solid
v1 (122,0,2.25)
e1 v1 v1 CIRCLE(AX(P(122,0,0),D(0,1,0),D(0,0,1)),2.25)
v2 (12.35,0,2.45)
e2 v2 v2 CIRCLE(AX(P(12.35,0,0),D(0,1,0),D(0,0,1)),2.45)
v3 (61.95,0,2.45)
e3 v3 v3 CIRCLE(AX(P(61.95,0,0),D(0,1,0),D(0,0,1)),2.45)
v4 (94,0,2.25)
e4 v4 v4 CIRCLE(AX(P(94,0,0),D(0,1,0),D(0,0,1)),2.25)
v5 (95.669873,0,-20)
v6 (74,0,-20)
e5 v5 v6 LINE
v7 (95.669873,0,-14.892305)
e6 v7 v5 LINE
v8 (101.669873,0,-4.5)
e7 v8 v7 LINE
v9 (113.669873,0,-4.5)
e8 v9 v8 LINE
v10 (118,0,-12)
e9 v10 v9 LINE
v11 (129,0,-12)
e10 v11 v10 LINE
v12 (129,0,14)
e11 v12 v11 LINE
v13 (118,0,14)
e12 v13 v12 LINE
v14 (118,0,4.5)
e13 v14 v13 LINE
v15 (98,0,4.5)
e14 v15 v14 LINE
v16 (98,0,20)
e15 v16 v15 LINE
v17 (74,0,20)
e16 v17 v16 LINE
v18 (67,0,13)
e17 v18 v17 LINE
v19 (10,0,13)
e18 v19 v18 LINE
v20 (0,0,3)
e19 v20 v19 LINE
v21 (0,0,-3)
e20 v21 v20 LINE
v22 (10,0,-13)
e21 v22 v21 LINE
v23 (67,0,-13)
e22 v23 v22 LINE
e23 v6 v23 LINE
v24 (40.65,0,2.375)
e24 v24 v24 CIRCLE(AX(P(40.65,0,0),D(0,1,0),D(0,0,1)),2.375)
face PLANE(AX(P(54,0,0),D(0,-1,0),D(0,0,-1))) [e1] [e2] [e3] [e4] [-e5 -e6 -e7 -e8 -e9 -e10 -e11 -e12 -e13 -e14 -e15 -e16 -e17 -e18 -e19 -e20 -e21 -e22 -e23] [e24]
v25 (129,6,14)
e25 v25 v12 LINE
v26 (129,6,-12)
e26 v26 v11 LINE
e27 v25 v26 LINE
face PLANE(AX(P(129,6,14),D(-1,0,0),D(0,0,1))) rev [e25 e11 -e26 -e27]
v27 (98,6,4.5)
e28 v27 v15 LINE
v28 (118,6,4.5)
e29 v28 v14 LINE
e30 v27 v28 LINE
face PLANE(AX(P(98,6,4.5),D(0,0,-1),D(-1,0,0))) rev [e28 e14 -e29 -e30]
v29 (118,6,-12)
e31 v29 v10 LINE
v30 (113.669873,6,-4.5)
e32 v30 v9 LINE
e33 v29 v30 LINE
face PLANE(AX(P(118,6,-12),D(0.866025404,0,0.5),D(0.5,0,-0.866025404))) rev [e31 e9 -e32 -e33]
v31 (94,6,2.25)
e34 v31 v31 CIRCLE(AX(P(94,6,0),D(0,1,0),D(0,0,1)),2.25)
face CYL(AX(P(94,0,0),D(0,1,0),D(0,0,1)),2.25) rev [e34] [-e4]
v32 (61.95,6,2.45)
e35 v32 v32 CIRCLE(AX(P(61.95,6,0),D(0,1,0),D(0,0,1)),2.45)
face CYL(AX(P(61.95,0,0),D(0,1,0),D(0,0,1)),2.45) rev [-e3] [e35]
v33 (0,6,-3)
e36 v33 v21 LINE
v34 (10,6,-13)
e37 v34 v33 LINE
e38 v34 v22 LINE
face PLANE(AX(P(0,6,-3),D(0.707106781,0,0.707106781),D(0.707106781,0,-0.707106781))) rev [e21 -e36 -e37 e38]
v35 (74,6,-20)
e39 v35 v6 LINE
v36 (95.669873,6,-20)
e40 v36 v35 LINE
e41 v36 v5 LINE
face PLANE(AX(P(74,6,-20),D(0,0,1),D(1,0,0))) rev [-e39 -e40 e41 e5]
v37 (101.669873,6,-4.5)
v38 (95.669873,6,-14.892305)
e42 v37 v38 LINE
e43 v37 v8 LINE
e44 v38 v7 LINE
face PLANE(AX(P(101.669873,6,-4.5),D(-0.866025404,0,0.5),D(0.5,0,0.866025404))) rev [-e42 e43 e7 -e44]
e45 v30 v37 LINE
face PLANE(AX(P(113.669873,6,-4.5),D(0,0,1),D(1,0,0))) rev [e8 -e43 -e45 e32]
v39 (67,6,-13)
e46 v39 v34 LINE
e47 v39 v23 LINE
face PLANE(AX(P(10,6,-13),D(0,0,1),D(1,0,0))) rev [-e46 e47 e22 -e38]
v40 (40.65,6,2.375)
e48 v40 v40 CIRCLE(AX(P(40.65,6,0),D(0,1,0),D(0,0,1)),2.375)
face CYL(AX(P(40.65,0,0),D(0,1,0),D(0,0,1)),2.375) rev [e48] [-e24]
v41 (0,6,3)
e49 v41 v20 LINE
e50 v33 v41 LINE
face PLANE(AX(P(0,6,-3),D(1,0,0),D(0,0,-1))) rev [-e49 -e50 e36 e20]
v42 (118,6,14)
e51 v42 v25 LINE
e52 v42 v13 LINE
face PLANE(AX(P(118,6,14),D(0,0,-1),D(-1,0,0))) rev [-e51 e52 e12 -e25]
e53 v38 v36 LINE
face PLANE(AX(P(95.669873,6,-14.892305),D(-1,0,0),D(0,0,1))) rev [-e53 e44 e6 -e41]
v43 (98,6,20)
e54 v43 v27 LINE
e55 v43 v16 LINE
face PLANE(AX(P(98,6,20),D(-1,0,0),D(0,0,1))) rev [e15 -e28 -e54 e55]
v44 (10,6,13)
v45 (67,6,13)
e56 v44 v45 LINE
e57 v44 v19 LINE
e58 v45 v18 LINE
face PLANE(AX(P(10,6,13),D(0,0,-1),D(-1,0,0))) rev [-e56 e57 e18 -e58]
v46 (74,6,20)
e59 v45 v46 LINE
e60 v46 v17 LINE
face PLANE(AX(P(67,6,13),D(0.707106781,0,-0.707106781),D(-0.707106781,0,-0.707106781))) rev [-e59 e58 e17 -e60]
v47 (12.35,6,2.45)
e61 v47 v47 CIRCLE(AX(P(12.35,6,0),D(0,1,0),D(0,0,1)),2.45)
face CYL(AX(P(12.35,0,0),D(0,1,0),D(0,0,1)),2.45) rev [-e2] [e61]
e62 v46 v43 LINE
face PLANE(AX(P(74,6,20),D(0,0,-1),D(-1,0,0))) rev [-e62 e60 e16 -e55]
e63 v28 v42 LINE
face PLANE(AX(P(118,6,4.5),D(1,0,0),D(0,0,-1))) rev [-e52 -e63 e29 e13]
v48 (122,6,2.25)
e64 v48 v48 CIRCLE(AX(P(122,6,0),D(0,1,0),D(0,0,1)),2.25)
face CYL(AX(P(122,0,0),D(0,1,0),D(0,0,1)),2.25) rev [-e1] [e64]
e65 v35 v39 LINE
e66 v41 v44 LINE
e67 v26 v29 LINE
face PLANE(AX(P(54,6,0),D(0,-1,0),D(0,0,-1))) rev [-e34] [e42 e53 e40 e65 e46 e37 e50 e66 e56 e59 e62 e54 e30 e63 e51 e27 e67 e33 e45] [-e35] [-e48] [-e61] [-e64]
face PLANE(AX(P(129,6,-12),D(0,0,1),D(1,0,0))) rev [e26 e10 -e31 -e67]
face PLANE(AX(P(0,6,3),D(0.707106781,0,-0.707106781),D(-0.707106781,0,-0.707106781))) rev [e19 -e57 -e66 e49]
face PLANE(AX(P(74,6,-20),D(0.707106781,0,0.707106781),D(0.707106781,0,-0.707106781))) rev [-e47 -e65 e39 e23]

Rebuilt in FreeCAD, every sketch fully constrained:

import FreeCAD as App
import Part
import Sketcher
Q = App.Units.Quantity

doc = App.newDocument("Part")
params = doc.addObject("Spreadsheet::Sheet", "Params")
for row, (alias, value) in enumerate([
    ("sketch1_width", "57 mm"),
    ("sketch1_width2", "24 mm"),
    ("sketch1_width3", "20 mm"),
    ("sketch1_width4", "11 mm"),
    ("sketch1_width5", "12 mm"),
    ("pad1_length", "6 mm"),
    ("sketch2_diameter", "4.9 mm"),
    ("sketch2_diameter2", "4.5 mm"),
    ("sketch2_diameter3", "4.75 mm"),
], start=1):
    params.set(f"A{row}", alias)
    params.set(f"B{row}", "=" + value)
    params.setAlias(f"B{row}", alias)

body = doc.addObject("PartDesign::Body", "Body")

# Sketch on XZ plane
sketch1 = doc.addObject("Sketcher::SketchObject", "Sketch")
body.addObject(sketch1)
sketch1.AttachmentSupport = (doc.XZ_Plane, [""])
sketch1.MapMode = "FlatFace"
sketch1.addGeometry([
    Part.LineSegment(App.Vector(67, -13, 0), App.Vector(10, -13, 0)),  # 0
    Part.LineSegment(App.Vector(10, -13, 0), App.Vector(0, -3, 0)),  # 1
    Part.LineSegment(App.Vector(0, -3, 0), App.Vector(0, 3, 0)),  # 2
    Part.LineSegment(App.Vector(0, 3, 0), App.Vector(10, 13, 0)),  # 3
    Part.LineSegment(App.Vector(10, 13, 0), App.Vector(67, 13, 0)),  # 4
    Part.LineSegment(App.Vector(67, 13, 0), App.Vector(74, 20, 0)),  # 5
    Part.LineSegment(App.Vector(74, 20, 0), App.Vector(98, 20, 0)),  # 6
    Part.LineSegment(App.Vector(98, 20, 0), App.Vector(98, 4, 0)),  # 7
    Part.LineSegment(App.Vector(98, 4, 0), App.Vector(118, 4, 0)),  # 8
    Part.LineSegment(App.Vector(118, 4, 0), App.Vector(118, 14, 0)),  # 9
    Part.LineSegment(App.Vector(118, 14, 0), App.Vector(129, 14, 0)),  # 10
    Part.LineSegment(App.Vector(129, 14, 0), App.Vector(129, -12, 0)),  # 11
    Part.LineSegment(App.Vector(129, -12, 0), App.Vector(118, -12, 0)),  # 12
    Part.LineSegment(App.Vector(118, -12, 0), App.Vector(114, -4, 0)),  # 13
    Part.LineSegment(App.Vector(114, -4, 0), App.Vector(102, -4, 0)),  # 14
    Part.LineSegment(App.Vector(102, -4, 0), App.Vector(96, -15, 0)),  # 15
    Part.LineSegment(App.Vector(96, -15, 0), App.Vector(96, -20, 0)),  # 16
    Part.LineSegment(App.Vector(96, -20, 0), App.Vector(74, -20, 0)),  # 17
    Part.LineSegment(App.Vector(74, -20, 0), App.Vector(67, -13, 0)),  # 18
], False)
sketch1.addConstraint([
    Sketcher.Constraint("Coincident", 0, 2, 1, 1),
    Sketcher.Constraint("Coincident", 1, 2, 2, 1),
    Sketcher.Constraint("Coincident", 2, 2, 3, 1),
    Sketcher.Constraint("Coincident", 3, 2, 4, 1),
    Sketcher.Constraint("Coincident", 4, 2, 5, 1),
    Sketcher.Constraint("Coincident", 5, 2, 6, 1),
    Sketcher.Constraint("Coincident", 6, 2, 7, 1),
    Sketcher.Constraint("Coincident", 7, 2, 8, 1),
    Sketcher.Constraint("Coincident", 8, 2, 9, 1),
    Sketcher.Constraint("Coincident", 9, 2, 10, 1),
    Sketcher.Constraint("Coincident", 10, 2, 11, 1),
    Sketcher.Constraint("Coincident", 11, 2, 12, 1),
    Sketcher.Constraint("Coincident", 12, 2, 13, 1),
    Sketcher.Constraint("Coincident", 13, 2, 14, 1),
    Sketcher.Constraint("Coincident", 14, 2, 15, 1),
    Sketcher.Constraint("Coincident", 15, 2, 16, 1),
    Sketcher.Constraint("Coincident", 16, 2, 17, 1),
    Sketcher.Constraint("Coincident", 17, 2, 18, 1),
    Sketcher.Constraint("Coincident", 18, 2, 0, 1),
    Sketcher.Constraint("Horizontal", 0),
    Sketcher.Constraint("Vertical", 2),
    Sketcher.Constraint("Horizontal", 4),
    Sketcher.Constraint("Horizontal", 6),
    Sketcher.Constraint("Vertical", 7),
    Sketcher.Constraint("Horizontal", 8),
    Sketcher.Constraint("Vertical", 9),
    Sketcher.Constraint("Horizontal", 10),
    Sketcher.Constraint("Vertical", 11),
    Sketcher.Constraint("Horizontal", 12),
    Sketcher.Constraint("Horizontal", 14),
    Sketcher.Constraint("Vertical", 16),
    Sketcher.Constraint("Horizontal", 17),
    Sketcher.Constraint("Symmetric", 1, 2, 2, 2, -1, 1),
    Sketcher.Constraint("Symmetric", 0, 2, 3, 2, -1),
    Sketcher.Constraint("Symmetric", 5, 2, 17, 2, -1),
    Sketcher.Constraint("Perpendicular", 1, 3),
    Sketcher.Constraint("Parallel", 3, 5),
    Sketcher.Constraint("Perpendicular", 5, 18),
    Sketcher.Constraint("Vertical", 9, 2, 12, 2),
    Sketcher.Constraint("DistanceX", 0, 2, 0, 1, Q("57 mm")),
    Sketcher.Constraint("DistanceX", 6, 1, 6, 2, Q("24 mm")),
    Sketcher.Constraint("DistanceX", 8, 1, 8, 2, Q("20 mm")),
    Sketcher.Constraint("DistanceX", 10, 1, 10, 2, Q("11 mm")),
    Sketcher.Constraint("DistanceX", 14, 2, 14, 1, Q("12 mm")),
    Sketcher.Constraint("DistanceY", 2, 1, 2, 2, Q("6 mm")),
    Sketcher.Constraint("DistanceY", 11, 2, 11, 1, Q("26 mm")),
    Sketcher.Constraint("Angle", 13, Q("120 deg")),
    Sketcher.Constraint("Angle", 15, Q("-120 deg")),
    Sketcher.Constraint("Distance", 15, Q("12 mm")),
    Sketcher.Constraint("DistanceY", 7, 2, 7, 1, Q("15.5 mm")),
    Sketcher.Constraint("DistanceY", 9, 1, 9, 2, Q("9.5 mm")),
    Sketcher.Constraint("DistanceX", -1, 1, 0, 2, Q("10 mm")),
    Sketcher.Constraint("DistanceX", -1, 1, 5, 2, Q("74 mm")),
    Sketcher.Constraint("DistanceY", 13, 2, 8, 2, Q("9 mm")),
])
sketch1.setExpression("Constraints[39]", "Params.sketch1_width")
sketch1.setExpression("Constraints[40]", "Params.sketch1_width2")
sketch1.setExpression("Constraints[41]", "Params.sketch1_width3")
sketch1.setExpression("Constraints[42]", "Params.sketch1_width4")
sketch1.setExpression("Constraints[43]", "Params.sketch1_width5")
pad1 = doc.addObject("PartDesign::Pad", "Pad")
body.addObject(pad1)
pad1.Profile = sketch1
pad1.setExpression("Length", "Params.pad1_length")
pad1.Reversed = True

# Sketch on XZ plane
sketch2 = doc.addObject("Sketcher::SketchObject", "Sketch001")
body.addObject(sketch2)
sketch2.AttachmentSupport = (doc.XZ_Plane, [""])
sketch2.MapMode = "FlatFace"
sketch2.AttachmentOffset = App.Placement(App.Vector(0, 0, -6), App.Rotation())
sketch2.addGeometry([
    Part.Circle(App.Vector(12.3, 0, 0), App.Vector(0, 0, 1), 2.5),  # 0
    Part.Circle(App.Vector(40.6, 0, 0), App.Vector(0, 0, 1), 2.4),  # 1
    Part.Circle(App.Vector(62, 0, 0), App.Vector(0, 0, 1), 2.5),  # 2
    Part.Circle(App.Vector(94, 0, 0), App.Vector(0, 0, 1), 2.2),  # 3
    Part.Circle(App.Vector(122, 0, 0), App.Vector(0, 0, 1), 2.2),  # 4
], False)
sketch2.addConstraint([
    Sketcher.Constraint("Equal", 0, 2),
    Sketcher.Constraint("Equal", 3, 4),
    Sketcher.Constraint("PointOnObject", 0, 3, -1),
    Sketcher.Constraint("PointOnObject", 1, 3, -1),
    Sketcher.Constraint("PointOnObject", 2, 3, -1),
    Sketcher.Constraint("PointOnObject", 3, 3, -1),
    Sketcher.Constraint("PointOnObject", 4, 3, -1),
    Sketcher.Constraint("Diameter", 0, Q("4.9 mm")),
    Sketcher.Constraint("Diameter", 3, Q("4.5 mm")),
    Sketcher.Constraint("Diameter", 1, Q("4.75 mm")),
    Sketcher.Constraint("DistanceX", -1, 1, 3, 3, Q("94 mm")),
    Sketcher.Constraint("DistanceX", -1, 1, 4, 3, Q("122 mm")),
    Sketcher.Constraint("DistanceX", 0, 3, 1, 3, Q("28.3 mm")),
    Sketcher.Constraint("DistanceX", 1, 3, 2, 3, Q("21.3 mm")),
    Sketcher.Constraint("DistanceX", -1, 1, 0, 3, Q("12.35 mm")),
])
sketch2.setExpression("Constraints[7]", "Params.sketch2_diameter")
sketch2.setExpression("Constraints[8]", "Params.sketch2_diameter2")
sketch2.setExpression("Constraints[9]", "Params.sketch2_diameter3")
pocket1 = doc.addObject("PartDesign::Pocket", "Pocket")
body.addObject(pocket1)
pocket1.Profile = sketch2
pocket1.Type = "ThroughAll"
pocket1.Reversed = True

doc.recompute()
